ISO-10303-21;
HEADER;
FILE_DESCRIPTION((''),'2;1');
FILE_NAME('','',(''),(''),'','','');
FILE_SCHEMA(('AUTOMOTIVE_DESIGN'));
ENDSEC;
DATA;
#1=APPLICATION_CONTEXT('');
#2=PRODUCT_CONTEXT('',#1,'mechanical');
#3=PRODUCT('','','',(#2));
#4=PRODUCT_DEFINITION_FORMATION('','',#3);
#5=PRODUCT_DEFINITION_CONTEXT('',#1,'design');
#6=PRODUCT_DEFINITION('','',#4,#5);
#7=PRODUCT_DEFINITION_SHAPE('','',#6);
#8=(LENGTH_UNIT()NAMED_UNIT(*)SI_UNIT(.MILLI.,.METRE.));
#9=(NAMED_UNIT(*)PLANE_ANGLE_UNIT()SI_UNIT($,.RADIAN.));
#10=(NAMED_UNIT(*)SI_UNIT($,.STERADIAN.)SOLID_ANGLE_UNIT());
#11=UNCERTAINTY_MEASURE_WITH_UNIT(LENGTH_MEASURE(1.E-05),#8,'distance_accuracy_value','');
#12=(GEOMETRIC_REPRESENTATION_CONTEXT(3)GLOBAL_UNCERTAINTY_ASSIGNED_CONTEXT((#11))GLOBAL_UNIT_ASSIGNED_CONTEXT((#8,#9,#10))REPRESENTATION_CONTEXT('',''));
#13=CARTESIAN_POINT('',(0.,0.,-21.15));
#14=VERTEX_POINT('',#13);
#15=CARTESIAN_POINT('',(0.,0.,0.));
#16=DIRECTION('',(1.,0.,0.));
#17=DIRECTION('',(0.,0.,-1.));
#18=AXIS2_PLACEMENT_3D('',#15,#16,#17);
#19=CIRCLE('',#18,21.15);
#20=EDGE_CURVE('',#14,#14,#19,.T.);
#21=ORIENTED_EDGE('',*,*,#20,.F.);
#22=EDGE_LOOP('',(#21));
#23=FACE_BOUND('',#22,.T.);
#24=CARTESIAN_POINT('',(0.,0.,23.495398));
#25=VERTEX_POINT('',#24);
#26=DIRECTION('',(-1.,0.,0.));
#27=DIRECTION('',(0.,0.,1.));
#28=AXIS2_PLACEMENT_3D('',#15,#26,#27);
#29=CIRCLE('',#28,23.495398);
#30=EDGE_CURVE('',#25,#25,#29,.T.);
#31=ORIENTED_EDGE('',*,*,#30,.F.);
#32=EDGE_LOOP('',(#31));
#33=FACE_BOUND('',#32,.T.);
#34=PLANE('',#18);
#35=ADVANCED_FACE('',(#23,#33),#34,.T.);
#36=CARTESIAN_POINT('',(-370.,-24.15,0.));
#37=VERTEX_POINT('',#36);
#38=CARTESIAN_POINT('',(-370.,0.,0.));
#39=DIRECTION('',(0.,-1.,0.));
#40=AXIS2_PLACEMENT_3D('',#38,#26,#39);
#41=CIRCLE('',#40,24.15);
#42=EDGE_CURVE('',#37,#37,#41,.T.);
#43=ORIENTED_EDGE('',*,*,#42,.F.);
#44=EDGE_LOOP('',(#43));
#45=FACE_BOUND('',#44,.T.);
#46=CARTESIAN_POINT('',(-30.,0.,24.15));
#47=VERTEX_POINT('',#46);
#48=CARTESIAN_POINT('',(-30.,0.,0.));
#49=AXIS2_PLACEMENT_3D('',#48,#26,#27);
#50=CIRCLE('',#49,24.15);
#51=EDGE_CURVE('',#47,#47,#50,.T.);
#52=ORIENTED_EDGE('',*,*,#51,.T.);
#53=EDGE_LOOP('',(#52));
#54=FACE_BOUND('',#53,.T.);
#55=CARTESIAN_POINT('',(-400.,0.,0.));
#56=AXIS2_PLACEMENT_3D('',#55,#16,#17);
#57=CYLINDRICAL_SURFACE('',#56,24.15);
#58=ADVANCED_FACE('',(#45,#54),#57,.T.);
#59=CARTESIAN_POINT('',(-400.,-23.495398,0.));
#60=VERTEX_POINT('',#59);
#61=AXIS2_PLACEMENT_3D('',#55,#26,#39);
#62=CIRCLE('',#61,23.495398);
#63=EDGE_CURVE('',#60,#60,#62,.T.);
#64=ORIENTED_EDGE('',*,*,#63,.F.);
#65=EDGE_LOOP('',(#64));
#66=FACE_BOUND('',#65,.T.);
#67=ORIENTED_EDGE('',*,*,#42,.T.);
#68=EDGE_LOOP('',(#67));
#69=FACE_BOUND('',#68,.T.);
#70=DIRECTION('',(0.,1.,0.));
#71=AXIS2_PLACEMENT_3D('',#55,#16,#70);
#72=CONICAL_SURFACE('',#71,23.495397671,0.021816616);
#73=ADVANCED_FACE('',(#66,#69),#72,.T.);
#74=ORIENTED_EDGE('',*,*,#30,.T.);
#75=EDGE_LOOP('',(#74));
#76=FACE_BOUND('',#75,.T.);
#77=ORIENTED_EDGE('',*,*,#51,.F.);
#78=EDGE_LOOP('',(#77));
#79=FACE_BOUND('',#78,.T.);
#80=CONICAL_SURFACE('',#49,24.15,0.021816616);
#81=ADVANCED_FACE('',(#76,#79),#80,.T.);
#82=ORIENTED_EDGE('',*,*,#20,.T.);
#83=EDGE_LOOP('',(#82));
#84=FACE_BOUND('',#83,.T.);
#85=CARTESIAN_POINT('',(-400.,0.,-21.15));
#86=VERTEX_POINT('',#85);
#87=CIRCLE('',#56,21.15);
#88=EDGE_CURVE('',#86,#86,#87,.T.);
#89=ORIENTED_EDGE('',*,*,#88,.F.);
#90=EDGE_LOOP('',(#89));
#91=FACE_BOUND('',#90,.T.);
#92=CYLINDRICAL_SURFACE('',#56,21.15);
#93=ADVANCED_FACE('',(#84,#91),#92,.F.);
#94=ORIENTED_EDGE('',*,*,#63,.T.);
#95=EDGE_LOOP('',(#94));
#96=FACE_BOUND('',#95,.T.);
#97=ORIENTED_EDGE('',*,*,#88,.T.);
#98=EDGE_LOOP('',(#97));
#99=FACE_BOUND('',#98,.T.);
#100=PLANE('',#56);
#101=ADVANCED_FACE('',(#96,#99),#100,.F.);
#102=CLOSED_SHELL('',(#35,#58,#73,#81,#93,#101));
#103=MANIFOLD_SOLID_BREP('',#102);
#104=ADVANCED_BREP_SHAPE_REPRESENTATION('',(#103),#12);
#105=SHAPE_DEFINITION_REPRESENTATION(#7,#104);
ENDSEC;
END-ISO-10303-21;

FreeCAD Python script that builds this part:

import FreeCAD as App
import Part
import Sketcher

V = App.Vector
Q = App.Units.Quantity


def add_polygon(sketch, points):
    """Adds a closed chain of lines whose ends are joined by coincident constraints."""
    first, n = sketch.GeometryCount, len(points)
    for a, b in zip(points, points[1:] + points[:1]):
        sketch.addGeometry(Part.LineSegment(App.Vector(*a, 0), App.Vector(*b, 0)), False)
    for i in range(n):
        sketch.addConstraint(Sketcher.Constraint("Coincident", first + i, 2, first + (i + 1) % n, 1))

doc = App.newDocument("Part")
body = doc.addObject("PartDesign::Body", "Body")

# Sketch on YZ plane
sketch1 = doc.addObject("Sketcher::SketchObject", "Sketch")
body.addObject(sketch1)
sketch1.AttachmentSupport = (doc.YZ_Plane, [""])
sketch1.MapMode = "FlatFace"
sketch1.addGeometry([
    Part.Circle(V(0, 0, 0), V(0, 0, 1), 24.15),
    Part.Circle(V(0, 0, 0), V(0, 0, 1), 21.15),
], False)
sketch1.addConstraint([
    Sketcher.Constraint("Coincident", 0, 3, -1, 1),
    Sketcher.Constraint("Coincident", 1, 3, -1, 1),
    Sketcher.Constraint("Diameter", 0, 48.3),
    Sketcher.Constraint("Diameter", 1, 42.3),
])
pad1 = doc.addObject("PartDesign::Pad", "Pad")
body.addObject(pad1)
pad1.Profile = sketch1
pad1.Length = 400
pad1.Reversed = True

# Sketch on XY plane
sketch2 = doc.addObject("Sketcher::SketchObject", "Sketch001")
body.addObject(sketch2)
sketch2.AttachmentSupport = (doc.XY_Plane, [""])
sketch2.MapMode = "FlatFace"
add_polygon(sketch2, [(0, 24.15), (-30, 24.15), (0, 23.495398)])  # lines 0-2
sketch2.addConstraint([
    Sketcher.Constraint("Horizontal", 0),
    Sketcher.Constraint("Vertical", 2),
    Sketcher.Constraint("PointOnObject", 1, 2, -2),
    Sketcher.Constraint("DistanceX", 0, 2, 0, 1, 30.0),
    Sketcher.Constraint("Angle", 1, Q("-1.25 deg")),
    Sketcher.Constraint("DistanceY", -1, 1, 0, 2, 24.15),
])
groove = doc.addObject("PartDesign::Groove", "Groove")
body.addObject(groove)
groove.Profile = sketch2
groove.ReferenceAxis = (sketch2, ["H_Axis"])
groove.Angle = 360

# Sketch on XY plane
sketch3 = doc.addObject("Sketcher::SketchObject", "Sketch002")
body.addObject(sketch3)
sketch3.AttachmentSupport = (doc.XY_Plane, [""])
sketch3.MapMode = "FlatFace"
add_polygon(sketch3, [(-370, 24.15), (-400, 24.15), (-400, 23.495398)])  # lines 0-2
sketch3.addConstraint([
    Sketcher.Constraint("Horizontal", 0),
    Sketcher.Constraint("Vertical", 1),
    Sketcher.Constraint("DistanceX", 0, 2, 0, 1, 30.0),
    Sketcher.Constraint("DistanceX", 0, 2, -1, 1, 400.0),
    Sketcher.Constraint("Angle", 2, Q("1.25 deg")),
    Sketcher.Constraint("DistanceY", -1, 1, 0, 2, 24.15),
])
groove2 = doc.addObject("PartDesign::Groove", "Groove001")
body.addObject(groove2)
groove2.Profile = sketch3
groove2.ReferenceAxis = (sketch3, ["H_Axis"])
groove2.Angle = 360

doc.recompute()
